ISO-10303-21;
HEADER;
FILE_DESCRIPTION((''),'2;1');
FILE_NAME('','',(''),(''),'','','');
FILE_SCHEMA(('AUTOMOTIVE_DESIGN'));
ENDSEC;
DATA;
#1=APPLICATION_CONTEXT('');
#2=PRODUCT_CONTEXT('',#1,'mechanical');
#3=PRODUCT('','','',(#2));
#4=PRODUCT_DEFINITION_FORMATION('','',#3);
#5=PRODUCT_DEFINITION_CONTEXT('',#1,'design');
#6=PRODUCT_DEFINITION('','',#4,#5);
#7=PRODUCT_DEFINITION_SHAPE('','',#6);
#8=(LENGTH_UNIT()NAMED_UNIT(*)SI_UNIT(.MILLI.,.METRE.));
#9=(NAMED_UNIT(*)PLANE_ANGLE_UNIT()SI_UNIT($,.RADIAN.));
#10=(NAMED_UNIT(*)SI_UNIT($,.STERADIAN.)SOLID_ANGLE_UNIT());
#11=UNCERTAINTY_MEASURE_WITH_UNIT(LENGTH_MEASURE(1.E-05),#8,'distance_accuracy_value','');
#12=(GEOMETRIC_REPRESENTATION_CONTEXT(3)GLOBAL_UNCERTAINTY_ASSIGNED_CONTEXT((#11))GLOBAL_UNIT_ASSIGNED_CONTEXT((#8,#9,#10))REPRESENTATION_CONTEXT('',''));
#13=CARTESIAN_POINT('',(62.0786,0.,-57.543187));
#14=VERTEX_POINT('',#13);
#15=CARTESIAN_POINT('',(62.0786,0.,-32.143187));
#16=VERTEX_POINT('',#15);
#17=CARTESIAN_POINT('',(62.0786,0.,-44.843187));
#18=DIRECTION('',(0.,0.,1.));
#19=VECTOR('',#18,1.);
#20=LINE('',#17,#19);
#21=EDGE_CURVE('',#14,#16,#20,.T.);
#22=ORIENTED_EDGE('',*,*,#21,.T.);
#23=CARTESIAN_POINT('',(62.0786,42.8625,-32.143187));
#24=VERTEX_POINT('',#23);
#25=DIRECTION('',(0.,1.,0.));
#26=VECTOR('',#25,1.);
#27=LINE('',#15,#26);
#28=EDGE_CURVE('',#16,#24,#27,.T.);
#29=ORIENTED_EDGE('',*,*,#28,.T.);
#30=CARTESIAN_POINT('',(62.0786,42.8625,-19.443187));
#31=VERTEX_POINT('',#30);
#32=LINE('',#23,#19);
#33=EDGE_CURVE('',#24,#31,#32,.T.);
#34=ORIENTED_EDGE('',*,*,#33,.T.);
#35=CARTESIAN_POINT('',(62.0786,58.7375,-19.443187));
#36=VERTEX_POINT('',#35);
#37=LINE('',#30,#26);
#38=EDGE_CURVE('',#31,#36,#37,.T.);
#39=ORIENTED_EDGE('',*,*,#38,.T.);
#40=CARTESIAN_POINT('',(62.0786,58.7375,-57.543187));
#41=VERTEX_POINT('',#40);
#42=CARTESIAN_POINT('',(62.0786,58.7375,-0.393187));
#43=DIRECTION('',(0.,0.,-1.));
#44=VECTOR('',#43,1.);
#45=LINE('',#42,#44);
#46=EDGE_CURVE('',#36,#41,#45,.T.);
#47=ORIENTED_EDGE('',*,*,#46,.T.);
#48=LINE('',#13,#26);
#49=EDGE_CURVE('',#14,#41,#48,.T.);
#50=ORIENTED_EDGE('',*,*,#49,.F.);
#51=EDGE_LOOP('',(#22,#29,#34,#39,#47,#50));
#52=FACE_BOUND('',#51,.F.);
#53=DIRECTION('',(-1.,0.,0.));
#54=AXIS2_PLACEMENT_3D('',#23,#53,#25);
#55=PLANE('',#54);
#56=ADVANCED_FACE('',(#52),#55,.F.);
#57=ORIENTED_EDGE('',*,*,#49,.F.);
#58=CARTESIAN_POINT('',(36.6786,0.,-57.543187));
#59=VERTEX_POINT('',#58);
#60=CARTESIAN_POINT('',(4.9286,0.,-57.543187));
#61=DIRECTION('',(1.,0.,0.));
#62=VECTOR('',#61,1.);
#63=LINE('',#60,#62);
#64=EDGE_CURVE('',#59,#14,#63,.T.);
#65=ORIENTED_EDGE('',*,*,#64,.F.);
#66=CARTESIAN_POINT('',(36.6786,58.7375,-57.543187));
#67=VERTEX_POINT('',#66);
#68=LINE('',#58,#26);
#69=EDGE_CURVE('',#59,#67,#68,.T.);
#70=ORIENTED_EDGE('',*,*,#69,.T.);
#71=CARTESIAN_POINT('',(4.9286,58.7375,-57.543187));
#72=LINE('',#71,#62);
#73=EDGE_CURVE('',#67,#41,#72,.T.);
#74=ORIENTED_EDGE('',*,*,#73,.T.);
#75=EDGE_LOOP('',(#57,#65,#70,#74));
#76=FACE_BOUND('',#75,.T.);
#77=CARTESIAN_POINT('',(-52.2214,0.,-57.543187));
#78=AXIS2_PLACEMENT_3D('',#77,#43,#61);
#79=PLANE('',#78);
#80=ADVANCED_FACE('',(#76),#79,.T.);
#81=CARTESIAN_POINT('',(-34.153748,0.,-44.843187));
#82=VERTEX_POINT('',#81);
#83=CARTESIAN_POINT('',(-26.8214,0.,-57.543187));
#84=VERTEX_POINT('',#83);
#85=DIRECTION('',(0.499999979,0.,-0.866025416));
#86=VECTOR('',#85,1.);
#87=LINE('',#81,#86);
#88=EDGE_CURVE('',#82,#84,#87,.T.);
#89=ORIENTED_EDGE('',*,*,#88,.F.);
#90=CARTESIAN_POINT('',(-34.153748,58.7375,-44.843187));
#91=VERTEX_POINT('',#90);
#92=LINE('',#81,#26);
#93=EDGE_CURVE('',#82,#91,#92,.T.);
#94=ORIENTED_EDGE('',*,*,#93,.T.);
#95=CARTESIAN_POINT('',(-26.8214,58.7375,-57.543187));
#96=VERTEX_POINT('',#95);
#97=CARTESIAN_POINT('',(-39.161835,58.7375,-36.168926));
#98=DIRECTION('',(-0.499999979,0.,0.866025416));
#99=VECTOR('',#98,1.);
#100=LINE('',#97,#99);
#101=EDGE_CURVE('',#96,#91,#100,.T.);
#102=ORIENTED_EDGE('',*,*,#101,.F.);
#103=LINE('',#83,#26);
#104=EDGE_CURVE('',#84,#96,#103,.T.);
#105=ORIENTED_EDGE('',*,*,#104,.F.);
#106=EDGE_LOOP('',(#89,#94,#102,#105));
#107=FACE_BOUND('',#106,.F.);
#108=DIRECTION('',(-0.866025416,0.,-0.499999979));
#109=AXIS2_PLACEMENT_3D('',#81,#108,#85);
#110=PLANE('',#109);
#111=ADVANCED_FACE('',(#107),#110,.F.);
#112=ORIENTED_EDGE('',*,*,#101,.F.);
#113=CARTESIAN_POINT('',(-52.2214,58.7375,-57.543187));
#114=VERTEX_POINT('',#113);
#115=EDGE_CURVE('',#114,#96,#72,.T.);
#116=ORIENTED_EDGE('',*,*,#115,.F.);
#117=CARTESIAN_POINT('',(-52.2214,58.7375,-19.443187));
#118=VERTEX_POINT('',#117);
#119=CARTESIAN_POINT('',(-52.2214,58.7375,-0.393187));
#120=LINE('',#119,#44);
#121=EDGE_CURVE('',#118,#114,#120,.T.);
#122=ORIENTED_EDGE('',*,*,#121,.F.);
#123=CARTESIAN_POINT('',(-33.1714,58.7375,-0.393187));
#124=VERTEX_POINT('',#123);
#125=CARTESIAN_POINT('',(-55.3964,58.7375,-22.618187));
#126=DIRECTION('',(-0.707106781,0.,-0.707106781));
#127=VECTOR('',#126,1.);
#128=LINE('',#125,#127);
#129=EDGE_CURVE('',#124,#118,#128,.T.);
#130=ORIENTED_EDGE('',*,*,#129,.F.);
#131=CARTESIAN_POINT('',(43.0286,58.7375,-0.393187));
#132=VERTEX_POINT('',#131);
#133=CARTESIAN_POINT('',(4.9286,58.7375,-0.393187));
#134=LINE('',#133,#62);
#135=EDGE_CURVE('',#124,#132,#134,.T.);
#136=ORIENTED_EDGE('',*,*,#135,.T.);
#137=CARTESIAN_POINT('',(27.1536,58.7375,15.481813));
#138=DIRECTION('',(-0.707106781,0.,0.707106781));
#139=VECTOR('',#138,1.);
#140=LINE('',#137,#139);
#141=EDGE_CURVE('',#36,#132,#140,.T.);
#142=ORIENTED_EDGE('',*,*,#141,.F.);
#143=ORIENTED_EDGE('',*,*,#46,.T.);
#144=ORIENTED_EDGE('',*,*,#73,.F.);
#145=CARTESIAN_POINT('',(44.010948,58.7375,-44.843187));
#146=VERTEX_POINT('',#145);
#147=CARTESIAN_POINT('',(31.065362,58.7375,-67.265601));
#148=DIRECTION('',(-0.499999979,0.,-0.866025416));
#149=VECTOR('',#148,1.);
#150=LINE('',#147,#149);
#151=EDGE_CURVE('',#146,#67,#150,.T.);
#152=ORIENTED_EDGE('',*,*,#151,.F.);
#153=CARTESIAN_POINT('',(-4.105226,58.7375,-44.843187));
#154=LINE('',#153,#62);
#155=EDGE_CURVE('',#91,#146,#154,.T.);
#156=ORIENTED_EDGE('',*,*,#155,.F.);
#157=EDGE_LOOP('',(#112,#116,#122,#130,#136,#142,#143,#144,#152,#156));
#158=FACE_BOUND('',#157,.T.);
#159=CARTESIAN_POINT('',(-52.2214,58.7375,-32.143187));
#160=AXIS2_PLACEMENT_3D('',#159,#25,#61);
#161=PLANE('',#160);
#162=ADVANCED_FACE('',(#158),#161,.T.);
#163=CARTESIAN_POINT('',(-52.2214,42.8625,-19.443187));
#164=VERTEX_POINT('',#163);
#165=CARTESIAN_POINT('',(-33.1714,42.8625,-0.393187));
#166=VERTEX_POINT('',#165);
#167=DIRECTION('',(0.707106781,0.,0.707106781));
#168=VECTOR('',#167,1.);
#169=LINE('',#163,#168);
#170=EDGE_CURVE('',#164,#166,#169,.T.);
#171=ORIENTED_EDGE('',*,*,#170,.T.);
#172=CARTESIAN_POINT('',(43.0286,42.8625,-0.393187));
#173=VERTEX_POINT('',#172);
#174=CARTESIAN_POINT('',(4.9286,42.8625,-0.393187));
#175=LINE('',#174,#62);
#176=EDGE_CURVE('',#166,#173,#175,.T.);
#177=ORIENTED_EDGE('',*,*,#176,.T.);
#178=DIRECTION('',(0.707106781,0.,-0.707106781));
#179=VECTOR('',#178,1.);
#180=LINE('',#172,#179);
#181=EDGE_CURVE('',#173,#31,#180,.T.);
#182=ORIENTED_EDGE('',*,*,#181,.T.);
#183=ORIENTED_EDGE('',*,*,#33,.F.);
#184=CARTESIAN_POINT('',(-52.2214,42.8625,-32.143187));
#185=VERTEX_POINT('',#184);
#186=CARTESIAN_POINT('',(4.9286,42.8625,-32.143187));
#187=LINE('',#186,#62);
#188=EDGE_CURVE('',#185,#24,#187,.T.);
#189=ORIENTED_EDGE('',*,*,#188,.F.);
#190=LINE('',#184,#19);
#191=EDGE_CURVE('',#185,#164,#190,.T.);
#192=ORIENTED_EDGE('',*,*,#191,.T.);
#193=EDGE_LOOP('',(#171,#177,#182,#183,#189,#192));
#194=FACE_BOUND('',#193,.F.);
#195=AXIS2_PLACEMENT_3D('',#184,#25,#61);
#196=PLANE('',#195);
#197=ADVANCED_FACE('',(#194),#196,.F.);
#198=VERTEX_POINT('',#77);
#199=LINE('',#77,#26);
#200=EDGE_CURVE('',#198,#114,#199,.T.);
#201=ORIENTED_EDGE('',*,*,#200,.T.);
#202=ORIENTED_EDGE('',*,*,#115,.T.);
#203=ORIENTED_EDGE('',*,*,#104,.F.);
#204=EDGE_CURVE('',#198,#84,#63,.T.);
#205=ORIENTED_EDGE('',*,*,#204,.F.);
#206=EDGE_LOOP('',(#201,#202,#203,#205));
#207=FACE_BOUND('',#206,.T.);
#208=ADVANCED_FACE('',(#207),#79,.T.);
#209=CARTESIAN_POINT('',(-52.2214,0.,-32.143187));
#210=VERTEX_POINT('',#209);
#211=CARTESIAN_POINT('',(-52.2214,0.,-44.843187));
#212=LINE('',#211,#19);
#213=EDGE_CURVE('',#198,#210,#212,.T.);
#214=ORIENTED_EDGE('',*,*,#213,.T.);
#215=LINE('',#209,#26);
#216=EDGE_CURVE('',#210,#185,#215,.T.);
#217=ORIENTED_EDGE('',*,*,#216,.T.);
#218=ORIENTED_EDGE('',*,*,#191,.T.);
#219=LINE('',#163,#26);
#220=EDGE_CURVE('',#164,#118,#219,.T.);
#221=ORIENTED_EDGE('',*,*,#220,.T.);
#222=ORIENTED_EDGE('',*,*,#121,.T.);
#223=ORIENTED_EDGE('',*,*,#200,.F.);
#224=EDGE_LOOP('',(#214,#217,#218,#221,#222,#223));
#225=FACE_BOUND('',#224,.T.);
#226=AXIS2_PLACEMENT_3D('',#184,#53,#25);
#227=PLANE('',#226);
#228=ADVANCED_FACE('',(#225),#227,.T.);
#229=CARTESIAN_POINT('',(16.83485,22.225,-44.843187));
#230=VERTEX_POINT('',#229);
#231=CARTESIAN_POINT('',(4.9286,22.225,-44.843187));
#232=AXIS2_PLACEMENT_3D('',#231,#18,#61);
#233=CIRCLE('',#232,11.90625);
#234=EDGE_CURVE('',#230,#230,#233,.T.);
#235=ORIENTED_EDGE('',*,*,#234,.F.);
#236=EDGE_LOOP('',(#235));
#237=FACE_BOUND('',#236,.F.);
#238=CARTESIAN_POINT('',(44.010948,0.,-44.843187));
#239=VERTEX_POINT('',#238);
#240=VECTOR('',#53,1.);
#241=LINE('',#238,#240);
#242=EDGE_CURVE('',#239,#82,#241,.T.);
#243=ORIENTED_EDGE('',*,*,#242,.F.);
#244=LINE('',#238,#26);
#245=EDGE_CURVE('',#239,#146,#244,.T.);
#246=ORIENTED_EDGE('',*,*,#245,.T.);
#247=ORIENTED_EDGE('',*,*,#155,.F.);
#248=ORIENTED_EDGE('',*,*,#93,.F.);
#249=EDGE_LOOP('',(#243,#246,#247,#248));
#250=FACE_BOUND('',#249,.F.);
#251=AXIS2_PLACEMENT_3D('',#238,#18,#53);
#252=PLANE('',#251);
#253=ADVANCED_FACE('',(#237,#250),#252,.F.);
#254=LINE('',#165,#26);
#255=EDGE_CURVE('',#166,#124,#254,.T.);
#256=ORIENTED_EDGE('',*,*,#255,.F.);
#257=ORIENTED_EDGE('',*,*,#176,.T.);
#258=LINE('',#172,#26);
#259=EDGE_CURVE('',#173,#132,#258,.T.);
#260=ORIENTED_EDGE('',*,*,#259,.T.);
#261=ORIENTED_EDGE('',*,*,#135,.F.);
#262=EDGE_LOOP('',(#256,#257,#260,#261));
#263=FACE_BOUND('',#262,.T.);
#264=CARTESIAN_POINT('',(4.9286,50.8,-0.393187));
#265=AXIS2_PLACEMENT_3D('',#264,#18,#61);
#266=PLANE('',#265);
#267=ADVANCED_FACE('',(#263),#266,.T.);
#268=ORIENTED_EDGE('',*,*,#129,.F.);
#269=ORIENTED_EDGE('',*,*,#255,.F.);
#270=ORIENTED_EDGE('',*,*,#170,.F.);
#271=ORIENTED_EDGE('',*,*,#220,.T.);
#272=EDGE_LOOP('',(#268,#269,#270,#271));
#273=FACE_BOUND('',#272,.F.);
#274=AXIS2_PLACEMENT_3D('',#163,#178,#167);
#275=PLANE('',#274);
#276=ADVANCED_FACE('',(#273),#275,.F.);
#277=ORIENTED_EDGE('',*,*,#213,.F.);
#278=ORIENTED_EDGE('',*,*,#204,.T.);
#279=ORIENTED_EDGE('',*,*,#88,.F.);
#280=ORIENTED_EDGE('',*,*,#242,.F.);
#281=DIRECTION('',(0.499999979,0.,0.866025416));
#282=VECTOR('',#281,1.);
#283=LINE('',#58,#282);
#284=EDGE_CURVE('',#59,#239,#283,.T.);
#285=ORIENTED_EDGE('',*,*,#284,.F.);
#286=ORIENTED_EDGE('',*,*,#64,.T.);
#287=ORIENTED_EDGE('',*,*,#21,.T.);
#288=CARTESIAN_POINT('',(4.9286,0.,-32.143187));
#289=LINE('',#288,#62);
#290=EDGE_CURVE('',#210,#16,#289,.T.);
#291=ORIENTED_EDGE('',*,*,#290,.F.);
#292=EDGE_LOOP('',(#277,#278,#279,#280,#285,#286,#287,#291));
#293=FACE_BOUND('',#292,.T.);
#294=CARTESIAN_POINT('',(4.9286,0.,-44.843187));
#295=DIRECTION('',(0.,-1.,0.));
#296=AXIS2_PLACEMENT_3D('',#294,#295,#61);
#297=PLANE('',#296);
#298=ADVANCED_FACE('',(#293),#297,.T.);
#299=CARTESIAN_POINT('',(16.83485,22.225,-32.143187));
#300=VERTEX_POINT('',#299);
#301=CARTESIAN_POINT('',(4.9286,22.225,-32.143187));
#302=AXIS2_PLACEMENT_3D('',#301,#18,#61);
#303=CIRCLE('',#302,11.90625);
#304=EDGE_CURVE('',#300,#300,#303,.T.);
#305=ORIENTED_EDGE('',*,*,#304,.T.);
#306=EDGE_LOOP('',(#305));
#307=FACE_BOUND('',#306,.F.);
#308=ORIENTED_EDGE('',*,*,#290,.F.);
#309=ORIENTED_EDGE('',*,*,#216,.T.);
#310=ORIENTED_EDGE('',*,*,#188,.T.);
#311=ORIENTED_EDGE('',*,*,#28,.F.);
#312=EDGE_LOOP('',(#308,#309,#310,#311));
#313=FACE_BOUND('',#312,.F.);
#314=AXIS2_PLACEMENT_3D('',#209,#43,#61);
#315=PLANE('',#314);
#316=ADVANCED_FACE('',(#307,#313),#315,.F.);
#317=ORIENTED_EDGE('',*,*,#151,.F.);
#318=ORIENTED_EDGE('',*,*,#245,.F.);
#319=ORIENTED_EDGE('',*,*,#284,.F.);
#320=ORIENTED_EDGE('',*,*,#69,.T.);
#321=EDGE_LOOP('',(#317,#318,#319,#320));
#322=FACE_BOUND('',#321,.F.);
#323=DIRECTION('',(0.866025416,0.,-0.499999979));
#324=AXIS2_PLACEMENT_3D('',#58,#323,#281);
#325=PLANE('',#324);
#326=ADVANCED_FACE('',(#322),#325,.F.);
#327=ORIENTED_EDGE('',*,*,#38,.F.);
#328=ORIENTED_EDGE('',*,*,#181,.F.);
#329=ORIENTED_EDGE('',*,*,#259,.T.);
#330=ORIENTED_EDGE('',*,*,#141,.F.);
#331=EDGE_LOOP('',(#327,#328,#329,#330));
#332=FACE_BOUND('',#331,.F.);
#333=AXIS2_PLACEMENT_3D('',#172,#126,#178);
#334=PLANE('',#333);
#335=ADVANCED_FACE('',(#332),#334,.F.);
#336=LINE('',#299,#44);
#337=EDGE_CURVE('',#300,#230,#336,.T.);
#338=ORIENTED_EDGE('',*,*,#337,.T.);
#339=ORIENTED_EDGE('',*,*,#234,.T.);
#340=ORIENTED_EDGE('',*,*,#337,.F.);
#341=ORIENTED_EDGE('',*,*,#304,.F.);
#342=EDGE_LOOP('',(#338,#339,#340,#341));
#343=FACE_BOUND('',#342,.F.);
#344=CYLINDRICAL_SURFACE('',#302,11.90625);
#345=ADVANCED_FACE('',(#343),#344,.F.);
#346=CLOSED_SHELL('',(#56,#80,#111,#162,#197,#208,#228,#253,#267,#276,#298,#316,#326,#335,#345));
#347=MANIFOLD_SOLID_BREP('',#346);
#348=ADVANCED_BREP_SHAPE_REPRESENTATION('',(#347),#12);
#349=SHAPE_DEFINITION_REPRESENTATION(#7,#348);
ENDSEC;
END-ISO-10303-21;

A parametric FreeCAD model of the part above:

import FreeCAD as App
import Part
import Sketcher
Q = App.Units.Quantity

doc = App.newDocument("Part")
body = doc.addObject("PartDesign::Body", "Body")

# Sketch on XZ plane
sketch1 = body.newObject("Sketcher::SketchObject", "Sketch")
sketch1.AttachmentSupport = (doc.getObject("XZ_Plane"), [""])
sketch1.MapMode = "FlatFace"
sketch1.addGeometry([
    Part.LineSegment(App.Vector(-52.2214, -32.143187, 0), App.Vector(-52.2214, -57.543187, 0)),
    Part.LineSegment(App.Vector(-52.2214, -57.543187, 0), App.Vector(62.0786, -57.543187, 0)),
    Part.LineSegment(App.Vector(62.0786, -57.543187, 0), App.Vector(62.0786, -32.143187, 0)),
    Part.LineSegment(App.Vector(62.0786, -32.143187, 0), App.Vector(-52.2214, -32.143187, 0)),
], False)
sketch1.addConstraint([
    Sketcher.Constraint("Coincident", 0, 2, 1, 1),
    Sketcher.Constraint("Coincident", 1, 2, 2, 1),
    Sketcher.Constraint("Coincident", 2, 2, 3, 1),
    Sketcher.Constraint("Coincident", 3, 2, 0, 1),
    Sketcher.Constraint("Vertical", 0),
    Sketcher.Constraint("Horizontal", 1),
    Sketcher.Constraint("Vertical", 2),
    Sketcher.Constraint("Horizontal", 3),
    Sketcher.Constraint("DistanceY", 0, 2, 0, 1, Q("1 in")),
    Sketcher.Constraint("DistanceX", 1, 1, 1, 2, Q("4.5 in")),
    Sketcher.Constraint("DistanceX", 0, 2, -1, 1, Q("52.2214 mm")),
    Sketcher.Constraint("DistanceY", 0, 2, -1, 1, Q("57.543187 mm")),
])
pad1 = body.newObject("PartDesign::Pad", "Pad")
pad1.Profile = sketch1
pad1.Length = Q("2.3125 in")
pad1.Reversed = True

# Sketch on XY plane
sketch2 = body.newObject("Sketcher::SketchObject", "Sketch001")
sketch2.AttachmentSupport = (doc.getObject("XY_Plane"), [""])
sketch2.MapMode = "FlatFace"
sketch2.AttachmentOffset = App.Placement(App.Vector(0, 0, -32.143187), App.Rotation())
sketch2.addGeometry([
    Part.LineSegment(App.Vector(-52.2214, 58.7375, 0), App.Vector(-52.2214, 42.8625, 0)),
    Part.LineSegment(App.Vector(-52.2214, 42.8625, 0), App.Vector(62.0786, 42.8625, 0)),
    Part.LineSegment(App.Vector(62.0786, 42.8625, 0), App.Vector(62.0786, 58.7375, 0)),
    Part.LineSegment(App.Vector(62.0786, 58.7375, 0), App.Vector(-52.2214, 58.7375, 0)),
], False)
sketch2.addConstraint([
    Sketcher.Constraint("Coincident", 0, 2, 1, 1),
    Sketcher.Constraint("Coincident", 1, 2, 2, 1),
    Sketcher.Constraint("Coincident", 2, 2, 3, 1),
    Sketcher.Constraint("Coincident", 3, 2, 0, 1),
    Sketcher.Constraint("Vertical", 0),
    Sketcher.Constraint("Horizontal", 1),
    Sketcher.Constraint("Vertical", 2),
    Sketcher.Constraint("Horizontal", 3),
    Sketcher.Constraint("DistanceX", 1, 1, 1, 2, Q("4.5 in")),
    Sketcher.Constraint("DistanceY", 0, 2, 0, 1, Q("0.625 in")),
    Sketcher.Constraint("DistanceY", -1, 1, 0, 2, Q("1.6875 in")),
    Sketcher.Constraint("DistanceX", 0, 2, -1, 1, Q("52.2214 mm")),
])
pad2 = body.newObject("PartDesign::Pad", "Pad001")
pad2.Profile = sketch2
pad2.Length = Q("1.25 in")

# Sketch on XZ plane
sketch3 = body.newObject("Sketcher::SketchObject", "Sketch002")
sketch3.AttachmentSupport = (doc.getObject("XZ_Plane"), [""])
sketch3.MapMode = "FlatFace"
sketch3.AttachmentOffset = App.Placement(App.Vector(0, 0, -1.6875 * 25.4), App.Rotation())
sketch3.addGeometry([
    Part.LineSegment(App.Vector(-52.2214, -0.393187, 0), App.Vector(-52.2214, -19.443187, 0)),  # 0
    Part.LineSegment(App.Vector(-52.2214, -19.443187, 0), App.Vector(-33.1714, -0.393187, 0)),  # 1
    Part.LineSegment(App.Vector(-33.1714, -0.393187, 0), App.Vector(-52.2214, -0.393187, 0)),  # 2
    Part.LineSegment(App.Vector(62.0786, -0.393187, 0), App.Vector(43.0286, -0.393187, 0)),  # 3
    Part.LineSegment(App.Vector(43.0286, -0.393187, 0), App.Vector(62.0786, -19.443187, 0)),  # 4
    Part.LineSegment(App.Vector(62.0786, -19.443187, 0), App.Vector(62.0786, -0.393187, 0)),  # 5
], False)
sketch3.addConstraint([
    Sketcher.Constraint("Coincident", 0, 2, 1, 1),
    Sketcher.Constraint("Coincident", 1, 2, 2, 1),
    Sketcher.Constraint("Coincident", 2, 2, 0, 1),
    Sketcher.Constraint("Coincident", 3, 2, 4, 1),
    Sketcher.Constraint("Coincident", 4, 2, 5, 1),
    Sketcher.Constraint("Coincident", 5, 2, 3, 1),
    Sketcher.Constraint("Vertical", 0),
    Sketcher.Constraint("Horizontal", 2),
    Sketcher.Constraint("Horizontal", 3),
    Sketcher.Constraint("Vertical", 5),
    Sketcher.Constraint("Perpendicular", 1, 4),
    Sketcher.Constraint("Horizontal", 2, 2, 3, 2),
    Sketcher.Constraint("Horizontal", 0, 2, 4, 2),
    Sketcher.Constraint("Equal", 2, 3),
    Sketcher.Constraint("DistanceX", 1, 2, 3, 2, Q("3 in")),
    Sketcher.Constraint("DistanceX", 2, 2, 2, 1, Q("0.75 in")),
    Sketcher.Constraint("DistanceX", 0, 2, -1, 1, Q("52.2214 mm")),
    Sketcher.Constraint("DistanceY", 0, 2, -1, 1, Q("19.443187 mm")),
])
pocket1 = body.newObject("PartDesign::Pocket", "Pocket")
pocket1.Profile = sketch3
pocket1.Type = "ThroughAll"

# Sketch on XY plane
sketch4 = body.newObject("Sketcher::SketchObject", "Sketch003")
sketch4.AttachmentSupport = (doc.getObject("XY_Plane"), [""])
sketch4.MapMode = "FlatFace"
sketch4.AttachmentOffset = App.Placement(App.Vector(0, 0, -32.143187), App.Rotation())
sketch4.addGeometry(Part.Circle(App.Vector(4.9286, 22.225, 0), App.Vector(0, 0, 1), 11.90625), False)
sketch4.addConstraint([
    Sketcher.Constraint("Diameter", 0, Q("0.9375 in")),
    Sketcher.Constraint("DistanceY", -1, 1, 0, 3, Q("0.875 in")),
    Sketcher.Constraint("DistanceX", -1, 1, 0, 3, Q("4.9286 mm")),
])
pocket2 = body.newObject("PartDesign::Pocket", "Pocket001")
pocket2.Profile = sketch4
pocket2.Type = "ThroughAll"

# Sketch on XZ plane
sketch5 = body.newObject("Sketcher::SketchObject", "Sketch004")
sketch5.AttachmentSupport = (doc.getObject("XZ_Plane"), [""])
sketch5.MapMode = "FlatFace"
sketch5.addGeometry([
    Part.LineSegment(App.Vector(44.010948, -44.843187, 0), App.Vector(-34.153748, -44.843187, 0)),
    Part.LineSegment(App.Vector(-34.153748, -44.843187, 0), App.Vector(-26.8214, -57.543187, 0)),
    Part.LineSegment(App.Vector(-26.8214, -57.543187, 0), App.Vector(36.6786, -57.543187, 0)),
    Part.LineSegment(App.Vector(36.6786, -57.543187, 0), App.Vector(44.010948, -44.843187, 0)),
], False)
sketch5.addConstraint([
    Sketcher.Constraint("Coincident", 0, 2, 1, 1),
    Sketcher.Constraint("Coincident", 1, 2, 2, 1),
    Sketcher.Constraint("Coincident", 2, 2, 3, 1),
    Sketcher.Constraint("Coincident", 3, 2, 0, 1),
    Sketcher.Constraint("Horizontal", 0),
    Sketcher.Constraint("Horizontal", 2),
    Sketcher.Constraint("Equal", 1, 3),
    Sketcher.Constraint("DistanceX", 2, 1, 2, 2, Q("2.5 in")),
    Sketcher.Constraint("Angle", 1, Q("-60.000001 deg")),
    Sketcher.Constraint("DistanceY", 1, 2, 0, 2, Q("0.5 in")),
    Sketcher.Constraint("DistanceX", 1, 2, -1, 1, Q("26.8214 mm")),
    Sketcher.Constraint("DistanceY", 0, 2, -1, 1, Q("44.843187 mm")),
])
pocket3 = body.newObject("PartDesign::Pocket", "Pocket002")
pocket3.Profile = sketch5
pocket3.Type = "ThroughAll"

doc.recompute()
